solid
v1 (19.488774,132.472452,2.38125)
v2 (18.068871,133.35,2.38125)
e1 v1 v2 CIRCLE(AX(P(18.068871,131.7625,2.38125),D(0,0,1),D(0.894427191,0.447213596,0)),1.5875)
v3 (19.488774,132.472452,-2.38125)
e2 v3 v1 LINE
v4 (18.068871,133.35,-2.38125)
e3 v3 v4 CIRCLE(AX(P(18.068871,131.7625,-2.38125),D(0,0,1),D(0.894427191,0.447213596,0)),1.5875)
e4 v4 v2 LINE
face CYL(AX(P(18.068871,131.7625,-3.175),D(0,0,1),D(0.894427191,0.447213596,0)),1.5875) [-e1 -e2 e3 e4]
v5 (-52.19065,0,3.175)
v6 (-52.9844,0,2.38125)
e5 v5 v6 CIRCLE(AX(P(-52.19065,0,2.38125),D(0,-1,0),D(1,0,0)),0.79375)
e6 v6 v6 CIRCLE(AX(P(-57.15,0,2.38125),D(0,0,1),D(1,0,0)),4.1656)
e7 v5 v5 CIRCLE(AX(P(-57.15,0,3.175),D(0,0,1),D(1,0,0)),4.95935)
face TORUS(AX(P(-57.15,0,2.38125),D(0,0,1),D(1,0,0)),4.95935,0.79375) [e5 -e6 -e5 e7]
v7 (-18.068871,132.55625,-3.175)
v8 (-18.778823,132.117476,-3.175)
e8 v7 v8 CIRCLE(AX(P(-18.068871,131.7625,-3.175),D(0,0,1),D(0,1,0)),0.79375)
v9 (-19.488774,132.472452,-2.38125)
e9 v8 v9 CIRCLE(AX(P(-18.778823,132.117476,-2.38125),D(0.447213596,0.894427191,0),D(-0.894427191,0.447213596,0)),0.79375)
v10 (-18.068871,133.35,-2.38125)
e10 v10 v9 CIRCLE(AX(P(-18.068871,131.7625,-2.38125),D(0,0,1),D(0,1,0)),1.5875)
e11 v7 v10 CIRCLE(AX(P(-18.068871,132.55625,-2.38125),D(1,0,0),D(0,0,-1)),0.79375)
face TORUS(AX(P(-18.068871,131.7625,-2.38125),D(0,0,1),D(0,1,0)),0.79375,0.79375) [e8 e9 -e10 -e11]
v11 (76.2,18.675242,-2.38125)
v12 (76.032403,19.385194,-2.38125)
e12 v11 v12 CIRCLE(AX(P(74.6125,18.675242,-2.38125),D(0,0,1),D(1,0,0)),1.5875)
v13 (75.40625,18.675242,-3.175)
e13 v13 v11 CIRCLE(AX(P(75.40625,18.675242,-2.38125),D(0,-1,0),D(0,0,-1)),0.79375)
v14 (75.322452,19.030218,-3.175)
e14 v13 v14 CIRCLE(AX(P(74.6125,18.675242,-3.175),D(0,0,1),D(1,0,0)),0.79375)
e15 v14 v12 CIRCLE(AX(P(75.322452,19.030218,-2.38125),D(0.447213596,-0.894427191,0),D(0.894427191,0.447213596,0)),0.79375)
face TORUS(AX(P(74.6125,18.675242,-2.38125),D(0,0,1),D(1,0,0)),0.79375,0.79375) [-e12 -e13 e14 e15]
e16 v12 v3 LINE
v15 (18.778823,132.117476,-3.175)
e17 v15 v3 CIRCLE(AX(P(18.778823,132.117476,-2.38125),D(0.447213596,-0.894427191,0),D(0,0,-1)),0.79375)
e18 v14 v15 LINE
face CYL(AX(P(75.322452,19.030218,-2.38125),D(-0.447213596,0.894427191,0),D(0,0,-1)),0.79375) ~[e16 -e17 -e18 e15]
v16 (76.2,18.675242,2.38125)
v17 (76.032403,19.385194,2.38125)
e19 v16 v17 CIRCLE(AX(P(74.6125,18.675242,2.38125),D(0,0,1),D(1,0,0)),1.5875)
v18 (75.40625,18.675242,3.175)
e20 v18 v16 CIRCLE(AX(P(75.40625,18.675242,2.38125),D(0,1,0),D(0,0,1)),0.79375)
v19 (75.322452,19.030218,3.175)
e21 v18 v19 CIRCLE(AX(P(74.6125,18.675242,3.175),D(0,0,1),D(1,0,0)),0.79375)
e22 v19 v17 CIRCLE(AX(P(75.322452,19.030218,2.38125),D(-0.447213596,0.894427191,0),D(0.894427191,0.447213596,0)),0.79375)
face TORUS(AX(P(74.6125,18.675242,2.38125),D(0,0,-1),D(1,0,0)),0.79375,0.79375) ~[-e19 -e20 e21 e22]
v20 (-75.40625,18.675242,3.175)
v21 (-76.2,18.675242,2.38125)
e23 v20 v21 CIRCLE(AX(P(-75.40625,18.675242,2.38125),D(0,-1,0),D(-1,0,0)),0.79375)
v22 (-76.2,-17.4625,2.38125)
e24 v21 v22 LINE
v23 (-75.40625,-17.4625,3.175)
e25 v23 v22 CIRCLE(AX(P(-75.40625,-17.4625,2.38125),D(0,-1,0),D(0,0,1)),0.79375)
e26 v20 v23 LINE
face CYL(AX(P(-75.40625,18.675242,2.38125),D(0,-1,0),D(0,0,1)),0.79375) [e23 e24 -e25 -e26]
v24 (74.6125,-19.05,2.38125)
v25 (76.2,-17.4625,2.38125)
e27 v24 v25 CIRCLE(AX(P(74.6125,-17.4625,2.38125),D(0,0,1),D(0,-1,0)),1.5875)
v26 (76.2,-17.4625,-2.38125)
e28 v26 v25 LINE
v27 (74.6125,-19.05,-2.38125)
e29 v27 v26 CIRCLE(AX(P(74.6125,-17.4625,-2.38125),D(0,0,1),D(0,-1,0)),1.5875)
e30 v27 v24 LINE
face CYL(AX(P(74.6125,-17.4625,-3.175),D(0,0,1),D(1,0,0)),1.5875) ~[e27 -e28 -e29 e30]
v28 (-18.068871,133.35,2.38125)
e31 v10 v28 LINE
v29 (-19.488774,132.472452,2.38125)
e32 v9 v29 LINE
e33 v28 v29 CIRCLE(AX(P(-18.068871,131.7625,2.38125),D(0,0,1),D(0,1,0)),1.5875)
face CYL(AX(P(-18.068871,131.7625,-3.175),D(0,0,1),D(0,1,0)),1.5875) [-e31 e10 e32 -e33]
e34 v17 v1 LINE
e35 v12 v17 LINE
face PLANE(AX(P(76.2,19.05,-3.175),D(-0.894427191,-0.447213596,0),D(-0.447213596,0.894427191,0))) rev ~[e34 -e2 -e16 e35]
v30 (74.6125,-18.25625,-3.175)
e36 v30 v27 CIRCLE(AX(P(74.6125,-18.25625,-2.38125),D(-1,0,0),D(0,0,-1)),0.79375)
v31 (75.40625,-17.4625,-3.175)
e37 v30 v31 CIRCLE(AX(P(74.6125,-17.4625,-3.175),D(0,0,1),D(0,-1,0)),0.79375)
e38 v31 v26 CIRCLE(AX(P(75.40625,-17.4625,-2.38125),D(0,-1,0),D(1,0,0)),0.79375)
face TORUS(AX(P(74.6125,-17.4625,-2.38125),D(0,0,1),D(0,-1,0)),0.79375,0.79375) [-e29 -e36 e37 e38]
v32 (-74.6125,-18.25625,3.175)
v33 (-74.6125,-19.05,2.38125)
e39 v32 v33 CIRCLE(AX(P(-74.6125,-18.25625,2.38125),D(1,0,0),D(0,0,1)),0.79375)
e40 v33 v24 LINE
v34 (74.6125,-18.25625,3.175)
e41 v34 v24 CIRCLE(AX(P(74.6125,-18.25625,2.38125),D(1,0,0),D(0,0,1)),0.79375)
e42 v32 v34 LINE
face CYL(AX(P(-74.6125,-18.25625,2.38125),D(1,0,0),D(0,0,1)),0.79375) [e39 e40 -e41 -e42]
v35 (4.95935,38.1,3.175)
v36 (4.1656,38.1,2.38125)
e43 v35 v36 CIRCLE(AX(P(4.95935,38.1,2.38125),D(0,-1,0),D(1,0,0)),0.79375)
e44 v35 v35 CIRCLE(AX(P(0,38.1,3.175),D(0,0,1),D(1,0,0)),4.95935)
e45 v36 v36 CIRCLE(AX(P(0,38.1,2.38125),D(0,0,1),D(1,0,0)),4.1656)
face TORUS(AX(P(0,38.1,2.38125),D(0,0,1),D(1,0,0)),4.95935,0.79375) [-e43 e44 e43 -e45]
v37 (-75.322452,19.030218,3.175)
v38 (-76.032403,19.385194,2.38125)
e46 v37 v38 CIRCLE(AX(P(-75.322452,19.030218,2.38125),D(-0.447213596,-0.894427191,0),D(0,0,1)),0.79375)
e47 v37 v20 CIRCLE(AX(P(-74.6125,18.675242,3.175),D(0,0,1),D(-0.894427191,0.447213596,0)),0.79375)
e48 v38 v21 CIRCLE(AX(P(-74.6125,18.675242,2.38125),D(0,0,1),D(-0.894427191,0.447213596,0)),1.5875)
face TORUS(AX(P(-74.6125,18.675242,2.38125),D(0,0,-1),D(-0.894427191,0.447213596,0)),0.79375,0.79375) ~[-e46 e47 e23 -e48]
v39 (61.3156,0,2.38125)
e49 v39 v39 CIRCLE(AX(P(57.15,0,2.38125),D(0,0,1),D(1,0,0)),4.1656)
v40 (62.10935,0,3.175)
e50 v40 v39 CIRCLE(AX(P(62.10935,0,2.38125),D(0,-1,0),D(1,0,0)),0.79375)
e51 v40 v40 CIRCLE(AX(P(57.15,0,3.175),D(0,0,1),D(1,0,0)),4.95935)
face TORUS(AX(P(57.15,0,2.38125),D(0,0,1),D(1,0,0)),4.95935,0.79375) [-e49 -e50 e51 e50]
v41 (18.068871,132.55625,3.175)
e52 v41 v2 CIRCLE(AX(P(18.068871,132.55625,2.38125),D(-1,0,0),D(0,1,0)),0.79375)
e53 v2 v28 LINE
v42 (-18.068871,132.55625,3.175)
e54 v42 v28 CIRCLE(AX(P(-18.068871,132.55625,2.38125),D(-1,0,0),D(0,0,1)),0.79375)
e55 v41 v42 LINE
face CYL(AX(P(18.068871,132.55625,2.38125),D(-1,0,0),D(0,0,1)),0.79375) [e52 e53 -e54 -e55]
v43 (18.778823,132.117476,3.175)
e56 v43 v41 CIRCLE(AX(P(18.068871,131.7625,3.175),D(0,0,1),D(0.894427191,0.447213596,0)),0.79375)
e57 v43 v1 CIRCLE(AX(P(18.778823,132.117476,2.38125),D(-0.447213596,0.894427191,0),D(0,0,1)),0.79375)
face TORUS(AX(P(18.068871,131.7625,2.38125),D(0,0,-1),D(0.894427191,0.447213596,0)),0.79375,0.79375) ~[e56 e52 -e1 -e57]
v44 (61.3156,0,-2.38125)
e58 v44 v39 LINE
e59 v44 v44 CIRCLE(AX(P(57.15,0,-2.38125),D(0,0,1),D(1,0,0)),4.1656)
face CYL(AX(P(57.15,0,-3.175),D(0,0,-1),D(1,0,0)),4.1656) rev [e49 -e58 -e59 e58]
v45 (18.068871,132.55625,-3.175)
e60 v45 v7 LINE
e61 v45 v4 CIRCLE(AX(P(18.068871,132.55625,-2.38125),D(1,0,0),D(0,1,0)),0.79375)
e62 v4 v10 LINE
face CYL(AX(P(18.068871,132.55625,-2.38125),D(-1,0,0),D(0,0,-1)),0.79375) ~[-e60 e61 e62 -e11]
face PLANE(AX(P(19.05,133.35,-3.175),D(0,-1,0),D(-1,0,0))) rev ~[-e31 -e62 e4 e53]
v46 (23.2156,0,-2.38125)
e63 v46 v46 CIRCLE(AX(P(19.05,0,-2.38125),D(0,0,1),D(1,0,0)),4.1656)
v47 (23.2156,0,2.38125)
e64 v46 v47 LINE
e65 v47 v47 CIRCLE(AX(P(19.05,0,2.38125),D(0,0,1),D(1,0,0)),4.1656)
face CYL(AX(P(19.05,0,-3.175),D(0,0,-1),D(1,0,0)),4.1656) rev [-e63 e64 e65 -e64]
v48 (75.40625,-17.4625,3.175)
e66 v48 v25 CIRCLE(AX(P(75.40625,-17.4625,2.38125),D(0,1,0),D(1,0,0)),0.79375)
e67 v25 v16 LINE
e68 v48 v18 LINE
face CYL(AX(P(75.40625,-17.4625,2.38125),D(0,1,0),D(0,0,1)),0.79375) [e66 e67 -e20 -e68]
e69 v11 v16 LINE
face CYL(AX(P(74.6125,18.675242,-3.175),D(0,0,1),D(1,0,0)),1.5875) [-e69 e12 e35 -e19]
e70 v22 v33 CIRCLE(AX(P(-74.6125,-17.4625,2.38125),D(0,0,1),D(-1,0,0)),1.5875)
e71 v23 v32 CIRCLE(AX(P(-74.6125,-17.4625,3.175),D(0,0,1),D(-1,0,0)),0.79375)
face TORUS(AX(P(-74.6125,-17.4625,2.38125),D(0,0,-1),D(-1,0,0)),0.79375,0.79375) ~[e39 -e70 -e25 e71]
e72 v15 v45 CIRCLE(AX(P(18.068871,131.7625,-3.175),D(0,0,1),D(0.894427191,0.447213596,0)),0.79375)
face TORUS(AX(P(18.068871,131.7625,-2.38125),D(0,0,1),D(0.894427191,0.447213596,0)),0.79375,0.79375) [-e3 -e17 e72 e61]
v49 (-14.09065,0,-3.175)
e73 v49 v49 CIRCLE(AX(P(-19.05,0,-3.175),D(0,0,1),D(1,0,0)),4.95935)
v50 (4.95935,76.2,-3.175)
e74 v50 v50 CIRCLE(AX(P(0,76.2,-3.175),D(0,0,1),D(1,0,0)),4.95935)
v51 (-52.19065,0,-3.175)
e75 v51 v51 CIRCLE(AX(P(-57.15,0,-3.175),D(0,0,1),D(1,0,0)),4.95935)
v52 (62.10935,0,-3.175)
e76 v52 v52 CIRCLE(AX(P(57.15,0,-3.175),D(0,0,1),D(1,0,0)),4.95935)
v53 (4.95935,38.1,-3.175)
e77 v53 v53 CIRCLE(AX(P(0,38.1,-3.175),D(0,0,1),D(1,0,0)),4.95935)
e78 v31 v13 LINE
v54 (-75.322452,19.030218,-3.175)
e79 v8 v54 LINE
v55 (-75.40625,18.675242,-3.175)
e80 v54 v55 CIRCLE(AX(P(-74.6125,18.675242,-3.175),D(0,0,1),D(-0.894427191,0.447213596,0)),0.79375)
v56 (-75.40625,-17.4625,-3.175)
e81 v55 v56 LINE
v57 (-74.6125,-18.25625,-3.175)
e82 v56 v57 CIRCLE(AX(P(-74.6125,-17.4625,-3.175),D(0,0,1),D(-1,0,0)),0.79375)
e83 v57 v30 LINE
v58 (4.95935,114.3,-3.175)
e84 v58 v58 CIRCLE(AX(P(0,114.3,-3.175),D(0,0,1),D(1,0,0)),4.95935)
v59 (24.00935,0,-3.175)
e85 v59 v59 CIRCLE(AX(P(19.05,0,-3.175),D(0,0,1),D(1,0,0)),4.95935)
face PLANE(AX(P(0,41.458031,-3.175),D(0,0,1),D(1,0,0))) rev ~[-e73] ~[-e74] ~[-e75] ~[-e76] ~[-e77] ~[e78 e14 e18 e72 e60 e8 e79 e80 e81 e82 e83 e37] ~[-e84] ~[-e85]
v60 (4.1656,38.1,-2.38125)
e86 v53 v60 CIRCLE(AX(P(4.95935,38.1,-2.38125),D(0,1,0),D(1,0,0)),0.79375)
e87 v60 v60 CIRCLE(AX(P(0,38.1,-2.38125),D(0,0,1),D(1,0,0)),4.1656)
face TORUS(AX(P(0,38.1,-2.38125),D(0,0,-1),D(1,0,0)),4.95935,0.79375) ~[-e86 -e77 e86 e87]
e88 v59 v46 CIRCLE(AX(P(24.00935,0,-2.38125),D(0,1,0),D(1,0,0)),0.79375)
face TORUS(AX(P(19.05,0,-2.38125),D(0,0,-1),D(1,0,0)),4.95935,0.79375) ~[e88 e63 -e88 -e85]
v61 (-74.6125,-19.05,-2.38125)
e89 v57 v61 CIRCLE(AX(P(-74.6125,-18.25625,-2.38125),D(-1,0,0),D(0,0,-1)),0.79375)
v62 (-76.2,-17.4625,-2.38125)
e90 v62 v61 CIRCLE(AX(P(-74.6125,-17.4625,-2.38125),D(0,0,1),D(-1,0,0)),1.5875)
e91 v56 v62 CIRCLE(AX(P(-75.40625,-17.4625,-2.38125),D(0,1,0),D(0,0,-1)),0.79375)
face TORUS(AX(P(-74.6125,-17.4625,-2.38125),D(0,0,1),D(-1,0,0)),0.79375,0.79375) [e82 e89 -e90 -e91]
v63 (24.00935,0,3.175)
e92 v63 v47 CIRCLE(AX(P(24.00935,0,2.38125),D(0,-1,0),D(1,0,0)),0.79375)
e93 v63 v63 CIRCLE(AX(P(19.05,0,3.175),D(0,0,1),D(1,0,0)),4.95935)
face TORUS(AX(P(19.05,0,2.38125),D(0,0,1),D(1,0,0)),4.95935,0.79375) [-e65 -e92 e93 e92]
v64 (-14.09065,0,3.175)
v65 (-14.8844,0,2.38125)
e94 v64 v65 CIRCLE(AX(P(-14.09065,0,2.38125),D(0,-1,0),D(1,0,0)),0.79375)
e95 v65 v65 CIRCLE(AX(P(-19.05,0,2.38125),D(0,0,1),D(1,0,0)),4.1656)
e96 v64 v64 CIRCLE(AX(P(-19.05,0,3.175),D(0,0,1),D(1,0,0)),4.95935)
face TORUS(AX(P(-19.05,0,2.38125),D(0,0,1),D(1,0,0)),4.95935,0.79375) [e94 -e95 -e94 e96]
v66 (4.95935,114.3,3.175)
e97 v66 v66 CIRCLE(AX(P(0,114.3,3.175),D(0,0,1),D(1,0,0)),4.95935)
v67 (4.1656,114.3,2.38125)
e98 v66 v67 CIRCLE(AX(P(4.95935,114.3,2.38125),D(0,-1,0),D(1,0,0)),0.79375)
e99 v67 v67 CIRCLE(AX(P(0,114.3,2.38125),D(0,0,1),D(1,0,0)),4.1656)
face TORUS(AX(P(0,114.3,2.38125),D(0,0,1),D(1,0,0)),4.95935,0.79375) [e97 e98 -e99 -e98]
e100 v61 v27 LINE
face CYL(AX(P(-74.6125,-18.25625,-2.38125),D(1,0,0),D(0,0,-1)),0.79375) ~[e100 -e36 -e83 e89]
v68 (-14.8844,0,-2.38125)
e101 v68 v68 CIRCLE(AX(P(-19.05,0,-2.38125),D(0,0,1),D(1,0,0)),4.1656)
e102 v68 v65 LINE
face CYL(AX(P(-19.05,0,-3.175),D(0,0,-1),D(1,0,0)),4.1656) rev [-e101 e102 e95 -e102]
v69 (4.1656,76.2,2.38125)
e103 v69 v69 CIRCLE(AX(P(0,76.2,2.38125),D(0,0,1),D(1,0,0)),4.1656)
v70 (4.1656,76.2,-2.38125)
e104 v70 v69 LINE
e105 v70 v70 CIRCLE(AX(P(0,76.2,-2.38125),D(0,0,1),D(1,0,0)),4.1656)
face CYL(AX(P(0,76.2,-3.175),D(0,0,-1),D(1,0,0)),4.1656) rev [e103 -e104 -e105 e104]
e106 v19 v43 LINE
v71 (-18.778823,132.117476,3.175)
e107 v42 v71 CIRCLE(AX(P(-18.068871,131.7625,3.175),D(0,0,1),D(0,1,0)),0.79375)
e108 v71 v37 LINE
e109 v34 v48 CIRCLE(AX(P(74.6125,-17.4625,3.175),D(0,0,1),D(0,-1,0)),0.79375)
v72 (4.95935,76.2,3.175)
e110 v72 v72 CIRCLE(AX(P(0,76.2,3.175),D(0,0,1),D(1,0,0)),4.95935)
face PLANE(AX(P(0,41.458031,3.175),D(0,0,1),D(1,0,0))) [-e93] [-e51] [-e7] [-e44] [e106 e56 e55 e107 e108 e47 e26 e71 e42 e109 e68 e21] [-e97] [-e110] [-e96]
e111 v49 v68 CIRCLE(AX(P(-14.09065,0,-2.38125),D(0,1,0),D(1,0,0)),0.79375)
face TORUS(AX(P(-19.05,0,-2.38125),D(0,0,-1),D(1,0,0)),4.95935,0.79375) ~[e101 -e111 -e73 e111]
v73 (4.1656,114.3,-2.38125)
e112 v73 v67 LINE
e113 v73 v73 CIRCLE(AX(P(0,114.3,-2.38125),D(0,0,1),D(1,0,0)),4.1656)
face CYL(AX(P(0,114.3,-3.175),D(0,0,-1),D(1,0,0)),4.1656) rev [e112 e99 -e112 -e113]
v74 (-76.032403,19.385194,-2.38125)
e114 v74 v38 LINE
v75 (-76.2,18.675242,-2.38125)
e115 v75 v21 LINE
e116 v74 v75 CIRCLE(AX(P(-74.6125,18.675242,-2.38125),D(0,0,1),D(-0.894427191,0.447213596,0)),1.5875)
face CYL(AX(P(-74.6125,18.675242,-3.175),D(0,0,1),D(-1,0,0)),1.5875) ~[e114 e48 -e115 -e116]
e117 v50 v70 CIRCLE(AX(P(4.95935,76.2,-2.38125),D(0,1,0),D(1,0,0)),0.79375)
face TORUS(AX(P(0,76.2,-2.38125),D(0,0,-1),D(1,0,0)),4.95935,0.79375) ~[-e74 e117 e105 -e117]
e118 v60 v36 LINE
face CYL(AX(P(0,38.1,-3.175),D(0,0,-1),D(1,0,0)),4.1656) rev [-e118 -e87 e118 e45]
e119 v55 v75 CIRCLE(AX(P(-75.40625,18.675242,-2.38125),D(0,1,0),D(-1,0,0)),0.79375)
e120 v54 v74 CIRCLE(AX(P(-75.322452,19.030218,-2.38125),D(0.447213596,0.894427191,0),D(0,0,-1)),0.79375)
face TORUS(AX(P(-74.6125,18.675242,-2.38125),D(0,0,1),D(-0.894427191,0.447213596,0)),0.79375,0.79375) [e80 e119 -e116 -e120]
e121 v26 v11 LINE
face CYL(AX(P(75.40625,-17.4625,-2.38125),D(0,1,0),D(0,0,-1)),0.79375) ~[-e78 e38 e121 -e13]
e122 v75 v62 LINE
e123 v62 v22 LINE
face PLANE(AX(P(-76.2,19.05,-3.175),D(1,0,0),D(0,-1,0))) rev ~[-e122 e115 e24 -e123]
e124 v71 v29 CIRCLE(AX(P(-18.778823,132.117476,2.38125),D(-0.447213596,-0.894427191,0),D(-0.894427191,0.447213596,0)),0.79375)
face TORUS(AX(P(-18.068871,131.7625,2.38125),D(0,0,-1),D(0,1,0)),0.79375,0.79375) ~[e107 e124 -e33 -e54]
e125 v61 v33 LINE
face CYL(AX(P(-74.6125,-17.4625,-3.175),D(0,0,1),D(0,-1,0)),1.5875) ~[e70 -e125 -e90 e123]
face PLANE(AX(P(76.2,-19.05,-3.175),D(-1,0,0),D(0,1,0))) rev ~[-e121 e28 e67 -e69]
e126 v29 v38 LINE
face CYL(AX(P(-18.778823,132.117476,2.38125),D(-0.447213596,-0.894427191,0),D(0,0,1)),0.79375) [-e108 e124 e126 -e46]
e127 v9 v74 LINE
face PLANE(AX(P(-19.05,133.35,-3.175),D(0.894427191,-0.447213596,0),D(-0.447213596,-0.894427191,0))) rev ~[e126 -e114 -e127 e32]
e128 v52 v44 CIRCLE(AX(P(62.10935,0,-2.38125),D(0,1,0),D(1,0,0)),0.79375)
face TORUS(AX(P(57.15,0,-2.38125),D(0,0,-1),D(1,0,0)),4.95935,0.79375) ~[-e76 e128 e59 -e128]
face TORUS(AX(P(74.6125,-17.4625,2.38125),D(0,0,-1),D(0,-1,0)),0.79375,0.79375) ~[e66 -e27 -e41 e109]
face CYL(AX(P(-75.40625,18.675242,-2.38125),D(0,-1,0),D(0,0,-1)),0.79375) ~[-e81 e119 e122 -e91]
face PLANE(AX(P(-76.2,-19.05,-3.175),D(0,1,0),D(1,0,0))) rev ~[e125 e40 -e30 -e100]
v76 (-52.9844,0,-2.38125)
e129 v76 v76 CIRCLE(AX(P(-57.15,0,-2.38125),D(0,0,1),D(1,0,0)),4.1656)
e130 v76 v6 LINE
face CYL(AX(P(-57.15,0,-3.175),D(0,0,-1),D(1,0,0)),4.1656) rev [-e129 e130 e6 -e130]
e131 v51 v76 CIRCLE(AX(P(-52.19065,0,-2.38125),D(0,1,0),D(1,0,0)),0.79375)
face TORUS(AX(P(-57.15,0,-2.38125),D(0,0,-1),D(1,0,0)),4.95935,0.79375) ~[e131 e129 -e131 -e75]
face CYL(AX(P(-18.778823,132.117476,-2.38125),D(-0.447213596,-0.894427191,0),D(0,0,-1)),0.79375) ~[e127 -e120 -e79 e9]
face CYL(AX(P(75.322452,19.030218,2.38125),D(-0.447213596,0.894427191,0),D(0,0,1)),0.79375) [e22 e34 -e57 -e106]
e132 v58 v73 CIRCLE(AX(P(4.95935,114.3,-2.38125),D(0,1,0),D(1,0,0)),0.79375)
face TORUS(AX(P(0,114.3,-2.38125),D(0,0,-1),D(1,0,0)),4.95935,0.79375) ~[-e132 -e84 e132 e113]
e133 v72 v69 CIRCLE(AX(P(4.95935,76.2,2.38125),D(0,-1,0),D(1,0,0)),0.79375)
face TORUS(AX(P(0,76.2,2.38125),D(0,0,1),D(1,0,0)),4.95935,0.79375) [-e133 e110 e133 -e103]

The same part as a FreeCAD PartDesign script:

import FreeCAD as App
import Part
import Sketcher
from FreeCAD import Vector
Q = App.Units.Quantity


def edges_at(feature, points):
    """Names of the edges that pass closest to the given points."""
    edges = feature.Shape.Edges
    near = lambda p: min(range(len(edges)), key=lambda i: edges[i].distToShape(Part.Vertex(*p))[0])
    return sorted({f"Edge{near(p) + 1}" for p in points})


def add_polygon(sketch, points):
    """Adds a closed chain of lines whose ends are joined by coincident constraints."""
    first, n = sketch.GeometryCount, len(points)
    for a, b in zip(points, points[1:] + points[:1]):
        sketch.addGeometry(Part.LineSegment(App.Vector(*a, 0), App.Vector(*b, 0)), False)
    for i in range(n):
        sketch.addConstraint(Sketcher.Constraint("Coincident", first + i, 2, first + (i + 1) % n, 1))

doc = App.newDocument("Part")
params = doc.addObject("Spreadsheet::Sheet", "Params")
for row, (alias, value) in enumerate([
    ("sketch1_width", "6 in"),
    ("sketch1_diameter", "0.328 in"),
    ("sketch1_width2", "1.5 in"),
    ("pad1_length", "0.125 in"),
    ("pad1_length2", "0.125 in"),
    ("fillet_radius", "0.0625 in"),
    ("fillet2_radius", "0.03125 in"),
], start=1):
    params.set(f"A{row}", alias)
    params.set(f"B{row}", "=" + value)
    params.setAlias(f"B{row}", alias)

body = doc.addObject("PartDesign::Body", "Body")

sketch1 = body.newObject("Sketcher::SketchObject", "Sketch")
sketch1.AttachmentSupport = (doc.getObject("XY_Plane"), [""])
sketch1.MapMode = "FlatFace"
add_polygon(sketch1, [(76.2, -19.05), (76.2, 19.05), (19.05, 133.35), (-19.05, 133.35), (-76.2, 19.05), (-76.2, -19.05)])
sketch1.addGeometry(Part.Circle(Vector(-57.15, 0, 0), Vector(0, 0, 1), 4.1656), False)
sketch1.addGeometry(Part.Circle(Vector(-19.05, 0, 0), Vector(0, 0, 1), 4.1656), False)
sketch1.addGeometry(Part.Circle(Vector(19.05, 0, 0), Vector(0, 0, 1), 4.1656), False)
sketch1.addGeometry(Part.Circle(Vector(57.15, 0, 0), Vector(0, 0, 1), 4.1656), False)
sketch1.addGeometry(Part.Circle(Vector(0, 38.1, 0), Vector(0, 0, 1), 4.1656), False)
sketch1.addGeometry(Part.Circle(Vector(0, 76.2, 0), Vector(0, 0, 1), 4.1656), False)
sketch1.addGeometry(Part.Circle(Vector(0, 114.3, 0), Vector(0, 0, 1), 4.1656), False)
sketch1.addConstraint([
    Sketcher.Constraint("Vertical", 0),
    Sketcher.Constraint("Horizontal", 2),
    Sketcher.Constraint("Vertical", 4),
    Sketcher.Constraint("Horizontal", 5),
    Sketcher.Constraint("Equal", 6, 7),
    Sketcher.Constraint("Equal", 7, 8),
    Sketcher.Constraint("Equal", 8, 9),
    Sketcher.Constraint("Equal", 9, 10),
    Sketcher.Constraint("Equal", 10, 11),
    Sketcher.Constraint("Equal", 11, 12),
    Sketcher.Constraint("Symmetric", 7, 3, 8, 3, -1, 1),
    Sketcher.Constraint("Symmetric", 6, 3, 9, 3, -1, 1),
    Sketcher.Constraint("Symmetric", 0, 2, 4, 2, -1, 1),
    Sketcher.Constraint("PointOnObject", 6, 3, -1),
    Sketcher.Constraint("PointOnObject", 7, 3, -1),
    Sketcher.Constraint("PointOnObject", 10, 3, -2),
    Sketcher.Constraint("PointOnObject", 11, 3, -2),
    Sketcher.Constraint("PointOnObject", 12, 3, -2),
    Sketcher.Constraint("Horizontal", 0, 2, 3, 2),
    Sketcher.Constraint("Vertical", 8, 3, 1, 2),
    Sketcher.Constraint("Vertical", 7, 3, 2, 2),
    Sketcher.Constraint("Equal", 2, 0),
    Sketcher.Constraint("DistanceX", 5, 1, 5, 2, Q("6 in")),
    Sketcher.Constraint("Diameter", 6, Q("0.328 in")),
    Sketcher.Constraint("DistanceX", 2, 2, 2, 1, Q("1.5 in")),
    Sketcher.Constraint("DistanceY", -1, 1, 11, 3, Q("3 in")),
    Sketcher.Constraint("DistanceX", 6, 3, 8, 3, Q("3 in")),
    Sketcher.Constraint("DistanceY", 10, 3, 12, 3, Q("3 in")),
    Sketcher.Constraint("DistanceY", -1, 1, 10, 3, Q("1.5 in")),
    Sketcher.Constraint("DistanceY", 0, 2, 1, 2, Q("4.5 in")),
])
sketch1.setExpression("Constraints[28]", "Params.sketch1_width")
sketch1.setExpression("Constraints[29]", "Params.sketch1_diameter")
sketch1.setExpression("Constraints[30]", "Params.sketch1_width2")
pad1 = body.newObject("PartDesign::Pad", "Pad")
pad1.Profile = sketch1
pad1.Type = "TwoLengths"
pad1.setExpression("Length", "Params.pad1_length")
pad1.setExpression("Length2", "Params.pad1_length2")
doc.recompute()

fillet = body.newObject("PartDesign::Fillet", "Fillet")
fillet.Base = (pad1, edges_at(pad1, [
    (-76.2, 19.05, 0),
    (-19.05, 133.35, 0),
    (19.05, 133.35, 0),
    (76.2, 19.05, 0),
    (76.2, -19.05, 0),
    (-76.2, -19.05, 0),
]))
fillet.setExpression("Radius", "Params.fillet_radius")
doc.recompute()

fillet2 = body.newObject("PartDesign::Fillet", "Fillet001")
fillet2.Base = (fillet, edges_at(fillet, [
    (-61.316, 0, 3.175),
    (-23.216, 0, 3.175),
    (52.984, 0, 3.175),
    (14.884, 0, 3.175),
    (-4.166, 38.1, 3.175),
    (-4.166, 76.2, 3.175),
    (-4.166, 114.3, 3.175),
    (-4.166, 114.3, -3.175),
    (-4.166, 76.2, -3.175),
    (-4.166, 38.1, -3.175),
    (14.884, 0, -3.175),
    (52.984, 0, -3.175),
    (-23.216, 0, -3.175),
    (-61.316, 0, -3.175),
    (0, -19.05, -3.175),
    (0, -19.05, 3.175),
    (-76.2, 0.606, -3.175),
    (-47.761, 75.929, -3.175),
    (0, 133.35, -3.175),
    (47.761, 75.929, -3.175),
    (76.2, 0.606, -3.175),
    (76.158, 19.04, -3.175),
    (18.903, 133.113, -3.175),
    (75.735, -18.585, -3.175),
    (-18.903, 133.113, -3.175),
    (-76.158, 19.04, -3.175),
    (-75.735, -18.585, -3.175),
    (-76.2, 0.606, 3.175),
    (76.2, 0.606, 3.175),
    (47.761, 75.929, 3.175),
    (0, 133.35, 3.175),
    (-47.761, 75.929, 3.175),
    (76.158, 19.04, 3.175),
    (18.903, 133.113, 3.175),
    (75.735, -18.585, 3.175),
    (-18.903, 133.113, 3.175),
    (-76.158, 19.04, 3.175),
    (-75.735, -18.585, 3.175),
]))
fillet2.setExpression("Radius", "Params.fillet2_radius")

doc.recompute()
